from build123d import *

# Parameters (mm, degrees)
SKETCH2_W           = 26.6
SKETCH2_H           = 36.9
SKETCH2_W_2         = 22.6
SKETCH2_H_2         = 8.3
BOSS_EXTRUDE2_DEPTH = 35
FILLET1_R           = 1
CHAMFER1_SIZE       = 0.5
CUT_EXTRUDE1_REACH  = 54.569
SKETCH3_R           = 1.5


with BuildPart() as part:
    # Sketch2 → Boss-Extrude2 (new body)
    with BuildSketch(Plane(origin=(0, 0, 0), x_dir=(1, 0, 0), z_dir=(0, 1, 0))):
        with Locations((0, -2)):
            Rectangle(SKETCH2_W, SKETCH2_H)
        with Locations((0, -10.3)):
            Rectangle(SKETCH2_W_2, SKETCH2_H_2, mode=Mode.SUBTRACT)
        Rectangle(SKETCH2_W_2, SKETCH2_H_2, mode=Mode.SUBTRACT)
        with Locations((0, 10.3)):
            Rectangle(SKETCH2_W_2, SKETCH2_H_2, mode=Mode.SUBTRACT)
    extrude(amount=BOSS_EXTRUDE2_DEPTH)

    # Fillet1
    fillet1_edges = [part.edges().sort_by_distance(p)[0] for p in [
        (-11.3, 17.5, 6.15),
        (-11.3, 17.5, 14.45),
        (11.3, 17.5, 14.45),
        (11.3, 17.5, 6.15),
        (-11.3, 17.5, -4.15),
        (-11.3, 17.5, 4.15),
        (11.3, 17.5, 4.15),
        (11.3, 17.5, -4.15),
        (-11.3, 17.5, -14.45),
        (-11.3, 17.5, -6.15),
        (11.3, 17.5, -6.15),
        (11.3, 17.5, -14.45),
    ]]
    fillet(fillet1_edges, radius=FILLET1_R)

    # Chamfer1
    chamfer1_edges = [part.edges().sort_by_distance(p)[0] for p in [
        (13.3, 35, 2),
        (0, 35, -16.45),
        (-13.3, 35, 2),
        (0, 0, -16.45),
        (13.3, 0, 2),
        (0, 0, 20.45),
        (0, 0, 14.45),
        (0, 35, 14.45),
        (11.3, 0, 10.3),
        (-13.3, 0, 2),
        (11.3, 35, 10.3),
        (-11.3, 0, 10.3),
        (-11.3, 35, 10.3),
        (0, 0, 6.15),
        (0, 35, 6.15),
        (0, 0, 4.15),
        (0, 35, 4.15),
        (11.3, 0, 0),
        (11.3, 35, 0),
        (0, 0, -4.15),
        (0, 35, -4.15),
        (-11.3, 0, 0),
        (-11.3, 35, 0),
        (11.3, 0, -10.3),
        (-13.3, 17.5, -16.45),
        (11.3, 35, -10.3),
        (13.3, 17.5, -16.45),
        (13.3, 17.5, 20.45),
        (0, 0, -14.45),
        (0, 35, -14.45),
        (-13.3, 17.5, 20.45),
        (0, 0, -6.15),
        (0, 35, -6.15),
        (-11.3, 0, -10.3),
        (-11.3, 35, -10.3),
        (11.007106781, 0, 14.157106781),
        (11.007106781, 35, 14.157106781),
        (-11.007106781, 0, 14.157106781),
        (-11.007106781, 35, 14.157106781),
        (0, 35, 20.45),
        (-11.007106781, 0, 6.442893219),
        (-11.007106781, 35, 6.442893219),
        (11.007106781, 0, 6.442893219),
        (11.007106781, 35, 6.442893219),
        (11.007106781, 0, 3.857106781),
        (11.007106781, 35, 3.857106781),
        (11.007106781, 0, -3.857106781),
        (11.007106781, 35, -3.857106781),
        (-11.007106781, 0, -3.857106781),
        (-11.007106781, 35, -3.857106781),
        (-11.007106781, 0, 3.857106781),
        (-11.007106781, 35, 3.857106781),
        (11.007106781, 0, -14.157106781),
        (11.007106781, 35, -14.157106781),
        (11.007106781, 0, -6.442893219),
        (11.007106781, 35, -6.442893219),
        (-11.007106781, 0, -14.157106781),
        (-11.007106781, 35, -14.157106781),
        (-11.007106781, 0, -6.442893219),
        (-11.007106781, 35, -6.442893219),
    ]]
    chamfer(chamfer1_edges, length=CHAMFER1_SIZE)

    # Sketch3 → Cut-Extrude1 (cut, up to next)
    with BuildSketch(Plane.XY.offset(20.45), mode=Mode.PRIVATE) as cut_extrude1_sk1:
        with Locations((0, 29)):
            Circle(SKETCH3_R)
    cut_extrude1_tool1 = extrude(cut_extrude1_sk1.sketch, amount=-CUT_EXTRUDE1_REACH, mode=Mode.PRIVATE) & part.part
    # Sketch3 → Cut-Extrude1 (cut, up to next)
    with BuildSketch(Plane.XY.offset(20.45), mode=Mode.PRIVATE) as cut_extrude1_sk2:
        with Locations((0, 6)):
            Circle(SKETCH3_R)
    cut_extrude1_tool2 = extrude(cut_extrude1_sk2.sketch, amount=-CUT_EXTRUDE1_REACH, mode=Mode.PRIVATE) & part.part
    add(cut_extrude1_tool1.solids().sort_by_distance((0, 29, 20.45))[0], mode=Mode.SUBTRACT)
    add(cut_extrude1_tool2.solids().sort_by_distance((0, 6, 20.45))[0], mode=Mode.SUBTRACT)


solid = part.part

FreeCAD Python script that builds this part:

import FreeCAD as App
import Part
import Sketcher

V = App.Vector


def edges_at(feature, points):
    """Names of the edges that pass closest to the given points."""
    edges = feature.Shape.Edges
    near = lambda p: min(range(len(edges)), key=lambda i: edges[i].distToShape(Part.Vertex(*p))[0])
    return sorted({f"Edge{near(p) + 1}" for p in points})


def add_polygon(sketch, points):
    """Adds a closed chain of lines whose ends are joined by coincident constraints."""
    first, n = sketch.GeometryCount, len(points)
    for a, b in zip(points, points[1:] + points[:1]):
        sketch.addGeometry(Part.LineSegment(App.Vector(*a, 0), App.Vector(*b, 0)), False)
    for i in range(n):
        sketch.addConstraint(Sketcher.Constraint("Coincident", first + i, 2, first + (i + 1) % n, 1))

doc = App.newDocument("Part")
params = doc.addObject("Spreadsheet::Sheet", "Params")
for row, (alias, value) in enumerate([
    ("sketch1_width", "26.6 mm"),
    ("sketch1_width2", "22.6 mm"),
    ("sketch1_height", "36.9 mm"),
    ("sketch1_height2", "8.3 mm"),
    ("pad1_length", "35 mm"),
    ("fillet_radius", "1 mm"),
    ("chamfer_size", "0.5 mm"),
    ("sketch2_diameter", "3 mm"),
    ("sketch3_diameter", "3 mm"),
], start=1):
    params.set(f"A{row}", alias)
    params.set(f"B{row}", "=" + value)
    params.setAlias(f"B{row}", alias)

body = doc.addObject("PartDesign::Body", "Body")

# Sketch on XZ plane
sketch1 = body.newObject("Sketcher::SketchObject", "Sketch")
sketch1.AttachmentSupport = (doc.getObject("XZ_Plane"), [""])
sketch1.MapMode = "FlatFace"
add_polygon(sketch1, [(-13, -16), (-13, 20), (13, 20), (13, -16)])  # lines 0-3
add_polygon(sketch1, [(11, 14), (-11, 14), (-11, 6), (11, 6)])  # lines 4-7
add_polygon(sketch1, [(11, 4), (-11, 4), (-11, -4), (11, -4)])  # lines 8-11
add_polygon(sketch1, [(11, -6), (-11, -6), (-11, -14), (11, -14)])  # lines 12-15
sketch1.addConstraint([
    Sketcher.Constraint("Vertical", 0),
    Sketcher.Constraint("Horizontal", 1),
    Sketcher.Constraint("Vertical", 2),
    Sketcher.Constraint("Horizontal", 3),
    Sketcher.Constraint("Horizontal", 4),
    Sketcher.Constraint("Vertical", 5),
    Sketcher.Constraint("Horizontal", 6),
    Sketcher.Constraint("Vertical", 7),
    Sketcher.Constraint("Horizontal", 8),
    Sketcher.Constraint("Vertical", 9),
    Sketcher.Constraint("Horizontal", 10),
    Sketcher.Constraint("Vertical", 11),
    Sketcher.Constraint("Horizontal", 12),
    Sketcher.Constraint("Vertical", 13),
    Sketcher.Constraint("Horizontal", 14),
    Sketcher.Constraint("Vertical", 15),
    Sketcher.Constraint("Symmetric", 8, 2, 10, 2, -1, 1),
    Sketcher.Constraint("Symmetric", 6, 2, 12, 2, -1, 1),
    Sketcher.Constraint("Symmetric", 4, 2, 14, 2, -1, 1),
    Sketcher.Constraint("Vertical", 5, 2, 8, 2),
    Sketcher.Constraint("Vertical", 7, 2, 10, 2),
    Sketcher.Constraint("Equal", 7, 9),
    Sketcher.Constraint("DistanceX", 1, 1, 1, 2, 26.6),
    Sketcher.Constraint("DistanceX", 4, 2, 4, 1, 22.6),
    Sketcher.Constraint("DistanceY", 0, 1, 0, 2, 36.9),
    Sketcher.Constraint("DistanceY", 5, 2, 5, 1, 8.3),
    Sketcher.Constraint("DistanceX", 0, 2, 4, 2, 2.0),
    Sketcher.Constraint("DistanceY", 4, 2, 0, 2, 6.0),
    Sketcher.Constraint("DistanceY", 8, 2, 5, 2, 2.0),
])
sketch1.setExpression("Constraints[38]", "Params.sketch1_width")
sketch1.setExpression("Constraints[39]", "Params.sketch1_width2")
sketch1.setExpression("Constraints[40]", "Params.sketch1_height")
sketch1.setExpression("Constraints[41]", "Params.sketch1_height2")
pad1 = body.newObject("PartDesign::Pad", "Pad")
pad1.Profile = sketch1
pad1.setExpression("Length", "Params.pad1_length")
pad1.Reversed = True
doc.recompute()

fillet = body.newObject("PartDesign::Fillet", "Fillet")
fillet.Base = (pad1, edges_at(pad1, [
    (-11.3, 17.5, 6.15),
    (-11.3, 17.5, 14.45),
    (11.3, 17.5, 14.45),
    (11.3, 17.5, 6.15),
    (-11.3, 17.5, -4.15),
    (-11.3, 17.5, 4.15),
    (11.3, 17.5, 4.15),
    (11.3, 17.5, -4.15),
    (-11.3, 17.5, -14.45),
    (-11.3, 17.5, -6.15),
    (11.3, 17.5, -6.15),
    (11.3, 17.5, -14.45),
]))
fillet.setExpression("Radius", "Params.fillet_radius")
doc.recompute()

chamfer = body.newObject("PartDesign::Chamfer", "Chamfer")
chamfer.Base = (fillet, ["Edge1"])
chamfer.UseAllEdges = True
chamfer.setExpression("Size", "Params.chamfer_size")

# Sketch on XY plane
sketch2 = body.newObject("Sketcher::SketchObject", "Sketch001")
sketch2.AttachmentSupport = (doc.getObject("XY_Plane"), [""])
sketch2.MapMode = "FlatFace"
sketch2.AttachmentOffset = App.Placement(V(0, 0, 20.45), App.Rotation())
sketch2.addGeometry(Part.Circle(V(0, 29, 0), V(0, 0, 1), 1.5), False)
sketch2.addConstraint([
    Sketcher.Constraint("PointOnObject", 0, 3, -2),
    Sketcher.Constraint("Diameter", 0, 3.0),
    Sketcher.Constraint("DistanceY", -1, 1, 0, 3, 29.0),
])
sketch2.setExpression("Constraints[1]", "Params.sketch2_diameter")
pocket1 = body.newObject("PartDesign::Pocket", "Pocket")
pocket1.Profile = sketch2
pocket1.Type = "UpToFirst"

# Sketch on XY plane
sketch3 = body.newObject("Sketcher::SketchObject", "Sketch002")
sketch3.AttachmentSupport = (doc.getObject("XY_Plane"), [""])
sketch3.MapMode = "FlatFace"
sketch3.AttachmentOffset = App.Placement(V(0, 0, 20.45), App.Rotation())
sketch3.addGeometry(Part.Circle(V(0, 6, 0), V(0, 0, 1), 1.5), False)
sketch3.addConstraint([
    Sketcher.Constraint("PointOnObject", 0, 3, -2),
    Sketcher.Constraint("Diameter", 0, 3.0),
    Sketcher.Constraint("DistanceY", -1, 1, 0, 3, 6.0),
])
sketch3.setExpression("Constraints[1]", "Params.sketch3_diameter")
pocket2 = body.newObject("PartDesign::Pocket", "Pocket001")
pocket2.Profile = sketch3
pocket2.Type = "UpToFirst"

doc.recompute()
